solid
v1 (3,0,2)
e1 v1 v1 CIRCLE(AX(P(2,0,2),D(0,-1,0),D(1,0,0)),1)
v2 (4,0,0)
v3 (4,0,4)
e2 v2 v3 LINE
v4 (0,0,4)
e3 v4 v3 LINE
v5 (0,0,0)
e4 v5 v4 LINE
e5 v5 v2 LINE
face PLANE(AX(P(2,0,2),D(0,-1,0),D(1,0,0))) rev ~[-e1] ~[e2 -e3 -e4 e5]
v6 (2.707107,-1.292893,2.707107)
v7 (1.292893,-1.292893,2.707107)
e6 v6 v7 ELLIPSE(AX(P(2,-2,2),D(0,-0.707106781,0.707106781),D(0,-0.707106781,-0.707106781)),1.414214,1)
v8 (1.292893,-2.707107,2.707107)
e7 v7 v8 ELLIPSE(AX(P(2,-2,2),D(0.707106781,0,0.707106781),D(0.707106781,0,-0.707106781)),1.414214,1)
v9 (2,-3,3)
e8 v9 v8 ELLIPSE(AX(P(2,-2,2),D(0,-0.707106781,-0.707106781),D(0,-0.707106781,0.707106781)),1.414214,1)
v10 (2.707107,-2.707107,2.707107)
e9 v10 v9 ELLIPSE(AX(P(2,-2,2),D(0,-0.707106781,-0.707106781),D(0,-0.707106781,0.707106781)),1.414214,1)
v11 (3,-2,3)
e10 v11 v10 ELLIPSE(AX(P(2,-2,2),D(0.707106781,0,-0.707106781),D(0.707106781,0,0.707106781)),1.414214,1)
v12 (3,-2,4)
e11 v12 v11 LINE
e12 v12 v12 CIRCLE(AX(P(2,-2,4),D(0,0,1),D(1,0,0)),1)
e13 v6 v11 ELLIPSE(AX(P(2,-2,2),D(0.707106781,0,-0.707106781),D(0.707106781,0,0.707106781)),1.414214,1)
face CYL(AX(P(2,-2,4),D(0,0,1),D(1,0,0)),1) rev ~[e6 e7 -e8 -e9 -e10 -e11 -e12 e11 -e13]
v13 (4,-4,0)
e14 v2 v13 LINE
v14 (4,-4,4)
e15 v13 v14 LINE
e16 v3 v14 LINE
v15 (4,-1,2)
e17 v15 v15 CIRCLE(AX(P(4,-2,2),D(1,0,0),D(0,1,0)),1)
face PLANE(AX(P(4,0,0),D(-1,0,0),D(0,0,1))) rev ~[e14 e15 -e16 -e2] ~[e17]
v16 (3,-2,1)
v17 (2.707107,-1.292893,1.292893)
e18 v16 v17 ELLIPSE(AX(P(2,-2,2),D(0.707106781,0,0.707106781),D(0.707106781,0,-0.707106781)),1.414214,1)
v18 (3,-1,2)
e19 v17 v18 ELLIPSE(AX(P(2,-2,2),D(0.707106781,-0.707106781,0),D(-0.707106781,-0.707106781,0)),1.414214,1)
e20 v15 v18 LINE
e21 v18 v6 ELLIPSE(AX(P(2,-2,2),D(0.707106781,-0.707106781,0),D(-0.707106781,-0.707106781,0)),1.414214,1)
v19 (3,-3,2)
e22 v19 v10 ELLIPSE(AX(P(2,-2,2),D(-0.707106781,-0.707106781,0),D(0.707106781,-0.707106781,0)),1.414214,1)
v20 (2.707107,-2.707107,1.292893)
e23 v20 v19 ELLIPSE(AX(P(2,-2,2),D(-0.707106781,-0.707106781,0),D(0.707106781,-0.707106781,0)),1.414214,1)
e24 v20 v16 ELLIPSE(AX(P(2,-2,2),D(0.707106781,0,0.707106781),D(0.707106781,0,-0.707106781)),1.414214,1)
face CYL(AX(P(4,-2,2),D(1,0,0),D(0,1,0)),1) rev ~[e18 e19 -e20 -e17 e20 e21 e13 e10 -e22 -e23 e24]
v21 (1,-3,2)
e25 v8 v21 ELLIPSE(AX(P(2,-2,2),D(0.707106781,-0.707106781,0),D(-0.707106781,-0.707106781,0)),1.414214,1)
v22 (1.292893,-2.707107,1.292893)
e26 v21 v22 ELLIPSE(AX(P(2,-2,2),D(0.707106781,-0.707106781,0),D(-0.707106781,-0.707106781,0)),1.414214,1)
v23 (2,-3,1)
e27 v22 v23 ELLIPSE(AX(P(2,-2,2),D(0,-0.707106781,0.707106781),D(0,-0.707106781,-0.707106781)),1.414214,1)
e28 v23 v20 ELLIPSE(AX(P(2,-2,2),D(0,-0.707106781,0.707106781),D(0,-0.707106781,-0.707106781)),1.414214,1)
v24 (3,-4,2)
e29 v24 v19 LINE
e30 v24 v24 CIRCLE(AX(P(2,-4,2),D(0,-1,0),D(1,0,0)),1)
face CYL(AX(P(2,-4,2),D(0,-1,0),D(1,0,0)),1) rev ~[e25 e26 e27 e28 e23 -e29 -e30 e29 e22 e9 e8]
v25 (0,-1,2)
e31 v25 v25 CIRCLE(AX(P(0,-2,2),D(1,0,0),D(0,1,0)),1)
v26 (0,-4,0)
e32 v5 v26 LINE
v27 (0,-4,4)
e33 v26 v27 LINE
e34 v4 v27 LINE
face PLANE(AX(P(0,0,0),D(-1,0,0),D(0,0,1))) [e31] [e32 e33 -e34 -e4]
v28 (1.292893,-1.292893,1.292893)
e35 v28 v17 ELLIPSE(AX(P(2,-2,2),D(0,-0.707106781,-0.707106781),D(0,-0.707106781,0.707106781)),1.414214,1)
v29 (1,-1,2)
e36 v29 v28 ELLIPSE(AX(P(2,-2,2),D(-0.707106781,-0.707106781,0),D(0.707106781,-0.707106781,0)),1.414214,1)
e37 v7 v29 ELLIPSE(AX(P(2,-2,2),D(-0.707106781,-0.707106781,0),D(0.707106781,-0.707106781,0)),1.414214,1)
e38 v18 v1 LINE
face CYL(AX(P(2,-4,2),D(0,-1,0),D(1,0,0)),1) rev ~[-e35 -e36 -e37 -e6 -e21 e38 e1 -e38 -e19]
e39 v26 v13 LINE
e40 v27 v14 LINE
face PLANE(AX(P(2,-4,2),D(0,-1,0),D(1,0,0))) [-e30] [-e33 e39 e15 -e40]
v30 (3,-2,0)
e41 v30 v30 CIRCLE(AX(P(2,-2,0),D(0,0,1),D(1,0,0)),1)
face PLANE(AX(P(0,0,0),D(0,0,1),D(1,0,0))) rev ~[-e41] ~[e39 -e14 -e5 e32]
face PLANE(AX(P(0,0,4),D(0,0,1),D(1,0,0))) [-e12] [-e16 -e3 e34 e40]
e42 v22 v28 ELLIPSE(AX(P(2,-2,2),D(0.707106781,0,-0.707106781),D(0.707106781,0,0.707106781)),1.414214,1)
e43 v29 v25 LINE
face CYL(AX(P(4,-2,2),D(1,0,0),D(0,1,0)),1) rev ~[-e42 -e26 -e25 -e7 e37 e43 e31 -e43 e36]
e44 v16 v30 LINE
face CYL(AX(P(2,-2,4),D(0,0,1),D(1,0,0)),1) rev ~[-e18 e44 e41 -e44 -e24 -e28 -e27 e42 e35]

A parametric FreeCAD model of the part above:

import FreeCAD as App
import Part
import Sketcher
from FreeCAD import Vector

doc = App.newDocument("Part")
body = doc.addObject("PartDesign::Body", "Body")

sketch1 = body.newObject("Sketcher::SketchObject", "Sketch")
sketch1.AttachmentSupport = (doc.getObject("XZ_Plane"), [""])
sketch1.MapMode = "FlatFace"
sketch1.addGeometry([
    Part.LineSegment(Vector(0, 4, 0), Vector(0, 0, 0)),
    Part.LineSegment(Vector(0, 0, 0), Vector(4, 0, 0)),
    Part.LineSegment(Vector(4, 0, 0), Vector(4, 4, 0)),
    Part.LineSegment(Vector(4, 4, 0), Vector(0, 4, 0)),
], False)
sketch1.addConstraint([
    Sketcher.Constraint("Coincident", 0, 2, 1, 1),
    Sketcher.Constraint("Coincident", 1, 2, 2, 1),
    Sketcher.Constraint("Coincident", 2, 2, 3, 1),
    Sketcher.Constraint("Coincident", 3, 2, 0, 1),
    Sketcher.Constraint("Vertical", 0),
    Sketcher.Constraint("Horizontal", 1),
    Sketcher.Constraint("Vertical", 2),
    Sketcher.Constraint("Horizontal", 3),
    Sketcher.Constraint("Coincident", 0, 2, -1, 1),
    Sketcher.Constraint("Equal", 3, 0),
    Sketcher.Constraint("DistanceX", 1, 1, 1, 2, 4.0),
])
pad1 = body.newObject("PartDesign::Pad", "Pad")
pad1.Profile = sketch1
pad1.Length = 4

sketch2 = body.newObject("Sketcher::SketchObject", "Sketch001")
sketch2.AttachmentSupport = (doc.getObject("XZ_Plane"), [""])
sketch2.MapMode = "FlatFace"
sketch2.AttachmentOffset = App.Placement(Vector(0, 0, 4), App.Rotation())
sketch2.addGeometry(Part.Circle(Vector(2, 2, 0), Vector(0, 0, 1), 1), False)
sketch2.addConstraint([
    Sketcher.Constraint("Diameter", 0, 2.0),
    Sketcher.Constraint("DistanceX", -1, 1, 0, 3, 2.0),
    Sketcher.Constraint("DistanceY", -1, 1, 0, 3, 2.0),
])
pocket1 = body.newObject("PartDesign::Pocket", "Pocket")
pocket1.Profile = sketch2
pocket1.Length = 4

sketch3 = body.newObject("Sketcher::SketchObject", "Sketch002")
sketch3.AttachmentSupport = (doc.getObject("YZ_Plane"), [""])
sketch3.MapMode = "FlatFace"
sketch3.AttachmentOffset = App.Placement(Vector(0, 0, 4), App.Rotation())
sketch3.addGeometry(Part.Circle(Vector(-2, 2, 0), Vector(0, 0, 1), 1), False)
sketch3.addConstraint([
    Sketcher.Constraint("Diameter", 0, 2.0),
    Sketcher.Constraint("DistanceX", 0, 3, -1, 1, 2.0),
    Sketcher.Constraint("DistanceY", -1, 1, 0, 3, 2.0),
])
pocket2 = body.newObject("PartDesign::Pocket", "Pocket001")
pocket2.Profile = sketch3
pocket2.Length = 4

sketch4 = body.newObject("Sketcher::SketchObject", "Sketch003")
sketch4.AttachmentSupport = (doc.getObject("XY_Plane"), [""])
sketch4.MapMode = "FlatFace"
sketch4.AttachmentOffset = App.Placement(Vector(0, 0, 4), App.Rotation())
sketch4.addGeometry(Part.Circle(Vector(2, -2, 0), Vector(0, 0, 1), 1), False)
sketch4.addConstraint([
    Sketcher.Constraint("Diameter", 0, 2.0),
    Sketcher.Constraint("DistanceX", -1, 1, 0, 3, 2.0),
    Sketcher.Constraint("DistanceY", 0, 3, -1, 1, 2.0),
])
pocket3 = body.newObject("PartDesign::Pocket", "Pocket002")
pocket3.Profile = sketch4
pocket3.Length = 4

doc.recompute()
